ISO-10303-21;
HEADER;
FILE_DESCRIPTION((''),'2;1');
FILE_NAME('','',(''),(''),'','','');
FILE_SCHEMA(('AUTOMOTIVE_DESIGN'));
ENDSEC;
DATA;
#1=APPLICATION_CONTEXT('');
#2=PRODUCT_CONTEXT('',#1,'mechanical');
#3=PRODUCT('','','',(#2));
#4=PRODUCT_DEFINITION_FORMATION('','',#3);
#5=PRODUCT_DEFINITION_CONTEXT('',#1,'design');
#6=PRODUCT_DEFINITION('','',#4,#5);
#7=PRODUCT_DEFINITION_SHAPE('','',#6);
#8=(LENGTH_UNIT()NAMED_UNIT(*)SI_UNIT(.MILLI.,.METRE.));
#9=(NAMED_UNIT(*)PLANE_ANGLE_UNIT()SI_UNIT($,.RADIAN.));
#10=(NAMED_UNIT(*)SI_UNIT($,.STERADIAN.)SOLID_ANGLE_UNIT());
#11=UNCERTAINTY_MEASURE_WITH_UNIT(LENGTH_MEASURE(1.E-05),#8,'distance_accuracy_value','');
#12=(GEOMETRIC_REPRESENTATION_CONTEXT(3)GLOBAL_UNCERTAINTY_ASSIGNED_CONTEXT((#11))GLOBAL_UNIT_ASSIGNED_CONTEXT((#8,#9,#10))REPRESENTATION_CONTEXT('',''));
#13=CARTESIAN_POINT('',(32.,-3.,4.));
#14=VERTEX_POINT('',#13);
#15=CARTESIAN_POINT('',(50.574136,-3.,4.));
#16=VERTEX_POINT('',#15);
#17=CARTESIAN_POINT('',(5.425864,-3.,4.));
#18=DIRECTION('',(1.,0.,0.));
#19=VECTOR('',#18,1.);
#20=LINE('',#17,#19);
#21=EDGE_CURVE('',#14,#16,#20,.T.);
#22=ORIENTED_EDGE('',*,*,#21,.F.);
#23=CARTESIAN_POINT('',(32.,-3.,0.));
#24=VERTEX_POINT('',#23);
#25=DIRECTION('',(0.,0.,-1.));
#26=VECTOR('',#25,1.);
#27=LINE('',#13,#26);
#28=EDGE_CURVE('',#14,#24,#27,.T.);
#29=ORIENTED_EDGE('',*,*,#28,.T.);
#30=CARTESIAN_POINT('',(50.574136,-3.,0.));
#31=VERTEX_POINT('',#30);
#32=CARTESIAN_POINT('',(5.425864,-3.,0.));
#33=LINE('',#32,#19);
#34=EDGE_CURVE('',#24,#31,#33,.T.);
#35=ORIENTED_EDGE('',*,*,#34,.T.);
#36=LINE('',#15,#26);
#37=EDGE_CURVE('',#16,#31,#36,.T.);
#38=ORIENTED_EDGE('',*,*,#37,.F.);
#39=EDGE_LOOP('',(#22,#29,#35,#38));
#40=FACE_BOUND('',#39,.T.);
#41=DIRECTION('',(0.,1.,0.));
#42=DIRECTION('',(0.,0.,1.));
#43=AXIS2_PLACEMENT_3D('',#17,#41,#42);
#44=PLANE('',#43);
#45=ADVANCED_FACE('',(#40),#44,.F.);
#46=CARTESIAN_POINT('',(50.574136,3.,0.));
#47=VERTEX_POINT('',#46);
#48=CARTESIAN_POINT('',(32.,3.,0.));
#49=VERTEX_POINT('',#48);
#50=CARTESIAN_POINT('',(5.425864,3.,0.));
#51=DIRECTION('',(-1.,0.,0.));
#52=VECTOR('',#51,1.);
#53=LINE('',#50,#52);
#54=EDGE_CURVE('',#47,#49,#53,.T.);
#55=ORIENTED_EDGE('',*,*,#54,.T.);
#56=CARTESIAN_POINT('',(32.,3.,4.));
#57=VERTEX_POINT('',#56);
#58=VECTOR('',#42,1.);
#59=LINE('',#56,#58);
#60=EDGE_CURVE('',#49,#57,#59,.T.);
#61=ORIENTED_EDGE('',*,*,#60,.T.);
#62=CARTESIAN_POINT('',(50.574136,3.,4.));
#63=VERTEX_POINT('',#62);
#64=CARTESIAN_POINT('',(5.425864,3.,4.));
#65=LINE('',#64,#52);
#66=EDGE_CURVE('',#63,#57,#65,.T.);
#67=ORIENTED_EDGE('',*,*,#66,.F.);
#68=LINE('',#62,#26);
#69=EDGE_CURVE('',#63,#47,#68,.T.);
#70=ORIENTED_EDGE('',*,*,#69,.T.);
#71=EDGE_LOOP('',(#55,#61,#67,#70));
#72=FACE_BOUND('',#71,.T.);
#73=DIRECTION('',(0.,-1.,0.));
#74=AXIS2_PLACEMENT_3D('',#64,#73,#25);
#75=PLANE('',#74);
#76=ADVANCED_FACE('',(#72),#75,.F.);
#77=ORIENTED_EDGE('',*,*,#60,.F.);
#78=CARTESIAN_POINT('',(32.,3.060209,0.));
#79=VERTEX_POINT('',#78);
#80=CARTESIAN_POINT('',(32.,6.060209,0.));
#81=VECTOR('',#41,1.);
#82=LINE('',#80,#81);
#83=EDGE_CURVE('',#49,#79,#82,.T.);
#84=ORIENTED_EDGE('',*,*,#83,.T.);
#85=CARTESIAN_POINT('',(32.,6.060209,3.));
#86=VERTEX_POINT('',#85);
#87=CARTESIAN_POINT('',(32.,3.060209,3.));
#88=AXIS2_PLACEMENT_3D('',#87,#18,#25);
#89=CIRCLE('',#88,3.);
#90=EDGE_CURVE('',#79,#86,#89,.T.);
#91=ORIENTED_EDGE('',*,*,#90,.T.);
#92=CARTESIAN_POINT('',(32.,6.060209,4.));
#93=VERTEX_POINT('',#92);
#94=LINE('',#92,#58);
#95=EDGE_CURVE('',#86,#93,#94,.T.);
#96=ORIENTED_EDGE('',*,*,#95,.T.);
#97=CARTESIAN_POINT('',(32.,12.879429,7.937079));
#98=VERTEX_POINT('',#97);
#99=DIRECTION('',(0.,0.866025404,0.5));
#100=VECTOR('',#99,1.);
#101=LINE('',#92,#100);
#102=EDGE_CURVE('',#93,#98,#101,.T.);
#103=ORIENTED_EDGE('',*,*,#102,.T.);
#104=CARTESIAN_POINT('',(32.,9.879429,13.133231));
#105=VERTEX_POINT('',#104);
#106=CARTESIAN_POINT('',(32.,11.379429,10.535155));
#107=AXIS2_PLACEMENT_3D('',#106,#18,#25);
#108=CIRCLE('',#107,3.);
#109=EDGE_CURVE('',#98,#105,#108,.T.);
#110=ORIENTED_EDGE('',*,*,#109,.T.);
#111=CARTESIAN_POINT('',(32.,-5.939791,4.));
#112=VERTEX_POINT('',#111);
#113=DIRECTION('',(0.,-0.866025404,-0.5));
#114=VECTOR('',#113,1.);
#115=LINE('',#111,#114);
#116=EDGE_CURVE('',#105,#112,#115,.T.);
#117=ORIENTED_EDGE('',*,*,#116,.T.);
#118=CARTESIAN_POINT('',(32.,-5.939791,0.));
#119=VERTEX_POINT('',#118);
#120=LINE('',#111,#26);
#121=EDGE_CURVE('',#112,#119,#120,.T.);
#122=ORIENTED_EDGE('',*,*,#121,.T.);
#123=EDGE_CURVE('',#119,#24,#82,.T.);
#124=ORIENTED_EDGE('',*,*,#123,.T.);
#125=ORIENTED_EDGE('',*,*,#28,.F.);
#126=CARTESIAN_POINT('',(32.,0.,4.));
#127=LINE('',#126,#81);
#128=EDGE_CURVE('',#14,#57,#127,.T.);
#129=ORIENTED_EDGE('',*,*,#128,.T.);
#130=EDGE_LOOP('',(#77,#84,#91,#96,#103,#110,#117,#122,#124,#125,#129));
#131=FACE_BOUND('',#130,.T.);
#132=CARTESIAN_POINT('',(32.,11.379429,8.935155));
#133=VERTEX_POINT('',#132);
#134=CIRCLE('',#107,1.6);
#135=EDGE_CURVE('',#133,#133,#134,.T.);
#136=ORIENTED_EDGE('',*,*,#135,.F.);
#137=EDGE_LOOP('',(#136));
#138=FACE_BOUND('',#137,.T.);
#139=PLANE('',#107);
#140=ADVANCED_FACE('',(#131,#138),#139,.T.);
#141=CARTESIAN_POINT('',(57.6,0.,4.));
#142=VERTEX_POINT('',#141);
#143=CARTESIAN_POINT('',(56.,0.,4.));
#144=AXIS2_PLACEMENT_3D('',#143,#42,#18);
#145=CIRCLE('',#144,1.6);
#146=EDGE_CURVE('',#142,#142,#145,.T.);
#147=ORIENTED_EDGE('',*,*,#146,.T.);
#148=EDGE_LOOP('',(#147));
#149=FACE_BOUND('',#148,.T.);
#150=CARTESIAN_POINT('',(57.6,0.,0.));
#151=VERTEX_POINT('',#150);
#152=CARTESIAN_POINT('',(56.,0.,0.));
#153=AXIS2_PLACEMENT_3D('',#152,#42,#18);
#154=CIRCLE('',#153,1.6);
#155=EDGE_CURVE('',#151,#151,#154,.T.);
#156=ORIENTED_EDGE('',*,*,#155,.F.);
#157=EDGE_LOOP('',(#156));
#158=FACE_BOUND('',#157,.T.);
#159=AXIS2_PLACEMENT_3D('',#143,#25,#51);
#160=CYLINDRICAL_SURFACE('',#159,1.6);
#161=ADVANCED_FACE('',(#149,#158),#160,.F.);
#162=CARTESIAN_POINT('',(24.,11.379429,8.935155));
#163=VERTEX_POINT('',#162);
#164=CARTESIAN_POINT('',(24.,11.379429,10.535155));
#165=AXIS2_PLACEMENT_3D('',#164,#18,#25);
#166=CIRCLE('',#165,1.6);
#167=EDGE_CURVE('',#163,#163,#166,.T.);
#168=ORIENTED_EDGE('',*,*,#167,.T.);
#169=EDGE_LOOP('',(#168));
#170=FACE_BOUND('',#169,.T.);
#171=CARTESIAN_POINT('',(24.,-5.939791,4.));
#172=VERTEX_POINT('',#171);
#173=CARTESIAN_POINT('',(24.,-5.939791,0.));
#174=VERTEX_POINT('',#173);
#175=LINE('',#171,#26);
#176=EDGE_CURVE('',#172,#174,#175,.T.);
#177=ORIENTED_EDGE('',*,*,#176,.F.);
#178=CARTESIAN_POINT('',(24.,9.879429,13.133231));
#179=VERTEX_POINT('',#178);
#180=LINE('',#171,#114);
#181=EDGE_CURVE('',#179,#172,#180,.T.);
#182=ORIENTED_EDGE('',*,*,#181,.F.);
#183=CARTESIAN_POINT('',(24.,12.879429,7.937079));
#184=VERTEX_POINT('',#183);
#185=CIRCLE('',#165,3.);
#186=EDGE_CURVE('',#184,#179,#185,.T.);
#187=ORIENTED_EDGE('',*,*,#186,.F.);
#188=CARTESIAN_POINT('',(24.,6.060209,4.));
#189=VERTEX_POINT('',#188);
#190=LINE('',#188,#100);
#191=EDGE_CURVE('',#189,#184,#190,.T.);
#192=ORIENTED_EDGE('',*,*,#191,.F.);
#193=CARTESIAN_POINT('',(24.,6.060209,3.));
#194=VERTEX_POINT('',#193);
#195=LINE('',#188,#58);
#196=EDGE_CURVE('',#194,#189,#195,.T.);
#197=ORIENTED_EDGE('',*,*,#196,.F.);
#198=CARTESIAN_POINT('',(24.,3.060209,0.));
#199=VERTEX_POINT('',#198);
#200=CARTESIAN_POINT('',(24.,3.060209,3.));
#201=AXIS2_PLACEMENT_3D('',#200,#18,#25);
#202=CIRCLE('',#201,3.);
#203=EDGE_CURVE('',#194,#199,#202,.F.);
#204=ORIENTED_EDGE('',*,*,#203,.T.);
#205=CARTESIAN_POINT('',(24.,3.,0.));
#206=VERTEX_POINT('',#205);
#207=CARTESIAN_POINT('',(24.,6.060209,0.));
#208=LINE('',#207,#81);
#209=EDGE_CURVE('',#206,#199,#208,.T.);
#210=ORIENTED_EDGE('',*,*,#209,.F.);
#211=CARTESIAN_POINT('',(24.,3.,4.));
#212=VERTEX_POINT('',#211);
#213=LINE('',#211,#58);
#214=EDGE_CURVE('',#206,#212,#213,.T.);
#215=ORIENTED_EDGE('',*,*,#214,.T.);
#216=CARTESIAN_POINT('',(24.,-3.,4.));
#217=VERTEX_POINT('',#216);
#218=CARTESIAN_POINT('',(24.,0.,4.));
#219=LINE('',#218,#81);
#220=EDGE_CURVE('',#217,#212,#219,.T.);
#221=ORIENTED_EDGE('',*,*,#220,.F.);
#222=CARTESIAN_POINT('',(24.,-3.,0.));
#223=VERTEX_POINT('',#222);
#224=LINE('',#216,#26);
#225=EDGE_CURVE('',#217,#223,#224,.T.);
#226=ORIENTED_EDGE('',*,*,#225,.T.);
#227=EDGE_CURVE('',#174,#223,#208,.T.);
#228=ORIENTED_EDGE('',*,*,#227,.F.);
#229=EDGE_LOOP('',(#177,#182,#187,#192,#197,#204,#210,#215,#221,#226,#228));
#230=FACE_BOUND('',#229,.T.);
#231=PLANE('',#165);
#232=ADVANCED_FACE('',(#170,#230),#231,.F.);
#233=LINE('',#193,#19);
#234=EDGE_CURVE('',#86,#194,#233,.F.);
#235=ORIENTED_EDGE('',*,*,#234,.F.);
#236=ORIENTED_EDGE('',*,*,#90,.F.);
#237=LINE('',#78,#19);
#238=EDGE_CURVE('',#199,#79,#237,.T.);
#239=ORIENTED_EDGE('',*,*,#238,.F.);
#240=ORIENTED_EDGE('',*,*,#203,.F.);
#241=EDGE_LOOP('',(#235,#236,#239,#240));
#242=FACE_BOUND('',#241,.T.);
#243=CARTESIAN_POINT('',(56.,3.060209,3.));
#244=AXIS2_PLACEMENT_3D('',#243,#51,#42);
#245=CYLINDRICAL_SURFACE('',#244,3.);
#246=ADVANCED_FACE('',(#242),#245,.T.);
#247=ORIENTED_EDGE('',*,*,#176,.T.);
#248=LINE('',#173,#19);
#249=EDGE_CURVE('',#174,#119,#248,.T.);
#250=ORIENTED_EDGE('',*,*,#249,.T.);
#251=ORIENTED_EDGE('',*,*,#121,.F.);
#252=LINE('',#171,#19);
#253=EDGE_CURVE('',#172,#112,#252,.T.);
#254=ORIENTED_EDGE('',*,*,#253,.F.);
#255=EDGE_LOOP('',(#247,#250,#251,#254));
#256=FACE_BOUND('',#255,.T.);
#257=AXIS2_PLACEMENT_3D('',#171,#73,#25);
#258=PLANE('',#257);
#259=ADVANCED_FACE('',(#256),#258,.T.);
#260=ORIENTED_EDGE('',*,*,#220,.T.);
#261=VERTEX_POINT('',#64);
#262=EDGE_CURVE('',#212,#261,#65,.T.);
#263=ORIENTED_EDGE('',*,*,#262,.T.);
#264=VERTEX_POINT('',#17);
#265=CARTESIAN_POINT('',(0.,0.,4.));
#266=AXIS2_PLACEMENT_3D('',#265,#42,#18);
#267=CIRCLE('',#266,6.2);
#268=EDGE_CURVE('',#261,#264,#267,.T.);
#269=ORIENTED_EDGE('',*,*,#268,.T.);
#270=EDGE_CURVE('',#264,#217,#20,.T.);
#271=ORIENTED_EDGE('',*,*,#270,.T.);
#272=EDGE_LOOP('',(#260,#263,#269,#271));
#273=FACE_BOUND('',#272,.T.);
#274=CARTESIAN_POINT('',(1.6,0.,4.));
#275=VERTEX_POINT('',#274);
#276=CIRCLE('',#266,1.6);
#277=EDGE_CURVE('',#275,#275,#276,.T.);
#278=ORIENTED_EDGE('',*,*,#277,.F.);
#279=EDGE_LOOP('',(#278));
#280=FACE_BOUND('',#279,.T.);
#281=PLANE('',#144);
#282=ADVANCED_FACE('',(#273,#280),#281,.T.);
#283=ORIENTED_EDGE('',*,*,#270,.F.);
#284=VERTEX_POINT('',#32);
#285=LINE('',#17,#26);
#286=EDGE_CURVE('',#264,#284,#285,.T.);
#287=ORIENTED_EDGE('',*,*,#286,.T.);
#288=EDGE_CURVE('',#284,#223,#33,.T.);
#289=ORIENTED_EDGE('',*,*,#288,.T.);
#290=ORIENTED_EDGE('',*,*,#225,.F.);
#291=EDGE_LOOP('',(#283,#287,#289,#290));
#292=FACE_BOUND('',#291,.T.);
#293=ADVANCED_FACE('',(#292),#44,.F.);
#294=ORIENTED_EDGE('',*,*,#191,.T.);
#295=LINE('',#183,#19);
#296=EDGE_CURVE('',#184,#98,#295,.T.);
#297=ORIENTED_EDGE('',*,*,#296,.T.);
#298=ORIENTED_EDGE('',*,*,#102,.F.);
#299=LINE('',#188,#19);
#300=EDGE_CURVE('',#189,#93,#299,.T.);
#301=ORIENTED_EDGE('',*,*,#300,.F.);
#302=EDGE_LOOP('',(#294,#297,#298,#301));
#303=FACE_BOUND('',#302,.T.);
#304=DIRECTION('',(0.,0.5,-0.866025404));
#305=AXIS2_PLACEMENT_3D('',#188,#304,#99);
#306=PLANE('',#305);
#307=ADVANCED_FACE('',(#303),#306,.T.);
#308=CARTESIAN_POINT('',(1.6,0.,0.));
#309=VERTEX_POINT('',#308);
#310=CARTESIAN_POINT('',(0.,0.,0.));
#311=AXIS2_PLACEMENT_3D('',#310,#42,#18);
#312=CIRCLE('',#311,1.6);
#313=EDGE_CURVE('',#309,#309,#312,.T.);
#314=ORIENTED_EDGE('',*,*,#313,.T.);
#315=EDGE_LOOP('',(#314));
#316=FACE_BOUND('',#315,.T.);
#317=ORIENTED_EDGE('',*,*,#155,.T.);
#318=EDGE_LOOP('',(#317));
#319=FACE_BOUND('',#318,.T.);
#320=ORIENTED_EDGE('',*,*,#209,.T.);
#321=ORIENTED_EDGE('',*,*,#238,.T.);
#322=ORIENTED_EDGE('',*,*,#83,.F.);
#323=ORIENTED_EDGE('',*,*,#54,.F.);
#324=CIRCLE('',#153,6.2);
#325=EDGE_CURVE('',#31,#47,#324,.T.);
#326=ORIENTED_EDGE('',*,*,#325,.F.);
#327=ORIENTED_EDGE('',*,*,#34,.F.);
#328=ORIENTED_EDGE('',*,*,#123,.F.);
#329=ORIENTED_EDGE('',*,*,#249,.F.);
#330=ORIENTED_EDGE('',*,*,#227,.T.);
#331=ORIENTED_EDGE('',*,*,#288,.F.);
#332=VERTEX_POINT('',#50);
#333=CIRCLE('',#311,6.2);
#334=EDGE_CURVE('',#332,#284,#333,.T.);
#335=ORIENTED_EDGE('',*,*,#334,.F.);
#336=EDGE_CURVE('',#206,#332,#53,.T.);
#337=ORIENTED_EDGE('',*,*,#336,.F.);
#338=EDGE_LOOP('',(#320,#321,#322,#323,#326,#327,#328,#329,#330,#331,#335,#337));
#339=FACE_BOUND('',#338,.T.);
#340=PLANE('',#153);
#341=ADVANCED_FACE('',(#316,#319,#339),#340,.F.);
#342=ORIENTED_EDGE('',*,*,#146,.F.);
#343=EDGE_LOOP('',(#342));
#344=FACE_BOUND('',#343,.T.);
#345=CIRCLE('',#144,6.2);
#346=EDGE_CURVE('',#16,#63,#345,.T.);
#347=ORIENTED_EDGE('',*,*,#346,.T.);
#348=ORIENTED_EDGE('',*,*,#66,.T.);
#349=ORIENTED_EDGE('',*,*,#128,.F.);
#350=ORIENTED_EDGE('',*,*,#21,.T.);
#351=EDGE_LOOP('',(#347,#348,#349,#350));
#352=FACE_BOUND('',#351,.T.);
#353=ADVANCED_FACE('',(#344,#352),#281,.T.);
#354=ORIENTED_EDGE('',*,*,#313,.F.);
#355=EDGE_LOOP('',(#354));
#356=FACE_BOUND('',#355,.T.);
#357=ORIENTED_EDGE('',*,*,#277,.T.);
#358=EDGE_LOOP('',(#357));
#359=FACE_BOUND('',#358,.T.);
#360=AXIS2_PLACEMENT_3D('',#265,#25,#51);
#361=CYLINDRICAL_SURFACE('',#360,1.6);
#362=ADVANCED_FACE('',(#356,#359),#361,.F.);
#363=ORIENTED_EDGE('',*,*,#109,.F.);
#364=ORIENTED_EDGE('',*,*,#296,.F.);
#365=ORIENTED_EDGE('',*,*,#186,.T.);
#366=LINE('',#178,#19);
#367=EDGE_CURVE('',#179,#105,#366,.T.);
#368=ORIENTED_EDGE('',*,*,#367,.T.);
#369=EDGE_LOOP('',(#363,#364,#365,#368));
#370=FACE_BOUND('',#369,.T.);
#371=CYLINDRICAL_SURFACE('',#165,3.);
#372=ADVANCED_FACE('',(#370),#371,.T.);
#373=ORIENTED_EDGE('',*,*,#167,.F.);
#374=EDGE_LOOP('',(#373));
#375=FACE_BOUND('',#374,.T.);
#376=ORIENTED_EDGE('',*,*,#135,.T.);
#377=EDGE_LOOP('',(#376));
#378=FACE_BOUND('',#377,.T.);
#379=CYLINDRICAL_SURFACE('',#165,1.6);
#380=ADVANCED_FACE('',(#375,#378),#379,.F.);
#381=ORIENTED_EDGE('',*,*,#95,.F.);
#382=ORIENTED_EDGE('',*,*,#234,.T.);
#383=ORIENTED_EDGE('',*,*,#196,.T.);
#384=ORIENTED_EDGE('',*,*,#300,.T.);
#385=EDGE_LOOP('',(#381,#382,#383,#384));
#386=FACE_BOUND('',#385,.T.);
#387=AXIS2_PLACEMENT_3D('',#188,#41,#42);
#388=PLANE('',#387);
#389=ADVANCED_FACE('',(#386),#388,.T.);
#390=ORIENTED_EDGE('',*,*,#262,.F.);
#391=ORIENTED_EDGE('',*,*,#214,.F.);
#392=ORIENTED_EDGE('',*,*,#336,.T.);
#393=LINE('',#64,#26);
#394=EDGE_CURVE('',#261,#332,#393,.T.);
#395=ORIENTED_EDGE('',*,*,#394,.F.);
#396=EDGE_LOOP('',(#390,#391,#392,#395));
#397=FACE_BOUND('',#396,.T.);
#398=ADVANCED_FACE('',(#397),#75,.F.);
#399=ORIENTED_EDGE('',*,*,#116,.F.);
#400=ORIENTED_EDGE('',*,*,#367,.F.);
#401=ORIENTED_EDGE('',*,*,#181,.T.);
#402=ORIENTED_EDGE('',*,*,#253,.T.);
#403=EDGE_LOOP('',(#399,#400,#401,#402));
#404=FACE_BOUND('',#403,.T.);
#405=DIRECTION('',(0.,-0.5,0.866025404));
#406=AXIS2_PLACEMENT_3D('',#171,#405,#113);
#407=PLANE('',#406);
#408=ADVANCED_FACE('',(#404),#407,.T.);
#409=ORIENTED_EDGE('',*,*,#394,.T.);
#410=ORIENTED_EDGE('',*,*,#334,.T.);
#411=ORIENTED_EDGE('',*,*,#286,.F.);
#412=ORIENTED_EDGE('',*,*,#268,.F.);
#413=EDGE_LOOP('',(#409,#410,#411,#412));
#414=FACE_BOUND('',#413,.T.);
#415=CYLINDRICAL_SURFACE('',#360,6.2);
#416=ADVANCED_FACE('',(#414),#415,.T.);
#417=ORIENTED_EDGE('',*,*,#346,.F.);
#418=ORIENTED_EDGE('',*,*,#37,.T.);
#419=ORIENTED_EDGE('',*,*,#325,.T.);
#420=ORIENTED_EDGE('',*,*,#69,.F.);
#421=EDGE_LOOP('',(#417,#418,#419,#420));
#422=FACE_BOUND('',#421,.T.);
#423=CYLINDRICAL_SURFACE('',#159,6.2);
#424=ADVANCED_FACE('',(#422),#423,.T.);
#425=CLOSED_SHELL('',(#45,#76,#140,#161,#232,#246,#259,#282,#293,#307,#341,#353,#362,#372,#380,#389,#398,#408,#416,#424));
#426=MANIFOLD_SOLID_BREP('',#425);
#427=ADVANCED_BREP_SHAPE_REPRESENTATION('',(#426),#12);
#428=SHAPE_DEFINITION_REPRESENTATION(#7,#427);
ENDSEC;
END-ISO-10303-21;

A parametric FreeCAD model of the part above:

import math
import FreeCAD as App
import Part
import Sketcher

V = App.Vector


def edges_at(feature, points):
    """Names of the edges that pass closest to the given points."""
    edges = feature.Shape.Edges
    near = lambda p: min(range(len(edges)), key=lambda i: edges[i].distToShape(Part.Vertex(*p))[0])
    return sorted({f"Edge{near(p) + 1}" for p in points})

doc = App.newDocument("Part")
body = doc.addObject("PartDesign::Body", "Body")

sketch1 = body.newObject("Sketcher::SketchObject", "Sketch")
sketch1.AttachmentSupport = (doc.getObject("XY_Plane"), [""])
sketch1.MapMode = "FlatFace"
sketch1.addGeometry([
    Part.LineSegment(V(5.425864, -3, 0), V(50.574136, -3, 0)),
    Part.ArcOfCircle(Part.Circle(V(56, 0, 0), V(0, 0, 1), 6.2), math.radians(-151.061472), math.radians(151.061472)),
    Part.LineSegment(V(50.574136, 3, 0), V(5.425864, 3, 0)),
    Part.ArcOfCircle(Part.Circle(V(0, 0, 0), V(0, 0, 1), 6.2), math.radians(28.938528), math.radians(331.061472)),
    Part.Circle(V(0, 0, 0), V(0, 0, 1), 1.6),
    Part.Circle(V(56, 0, 0), V(0, 0, 1), 1.6),
], False)
sketch1.addConstraint([
    Sketcher.Constraint("Coincident", 0, 2, 1, 1),
    Sketcher.Constraint("Coincident", 1, 2, 2, 1),
    Sketcher.Constraint("Coincident", 2, 2, 3, 1),
    Sketcher.Constraint("Coincident", 3, 2, 0, 1),
    Sketcher.Constraint("Horizontal", 0),
    Sketcher.Constraint("Horizontal", 2),
    Sketcher.Constraint("Coincident", 3, 3, -1, 1),
    Sketcher.Constraint("Coincident", 4, 3, -1, 1),
    Sketcher.Constraint("Coincident", 5, 3, 1, 3),
    Sketcher.Constraint("Equal", 1, 3),
    Sketcher.Constraint("Equal", 4, 5),
    Sketcher.Constraint("Symmetric", 0, 2, 1, 2, -1),
    Sketcher.Constraint("Diameter", 4, 3.2),
    Sketcher.Constraint("Radius", 1, 6.2),
    Sketcher.Constraint("DistanceX", -1, 1, 1, 3, 56.0),
    Sketcher.Constraint("DistanceY", 0, 2, -1, 1, 3.0),
])
pad1 = body.newObject("PartDesign::Pad", "Pad")
pad1.Profile = sketch1
pad1.Length = 4

sketch2 = body.newObject("Sketcher::SketchObject", "Sketch001")
sketch2.AttachmentSupport = (doc.getObject("YZ_Plane"), [""])
sketch2.MapMode = "FlatFace"
sketch2.AttachmentOffset = App.Placement(V(0, 0, 28), App.Rotation())
sketch2.addGeometry([
    Part.LineSegment(V(9.879429, 13.133231, 0), V(-5.939791, 4, 0)),
    Part.LineSegment(V(-5.939791, 4, 0), V(-5.939791, 0, 0)),
    Part.LineSegment(V(-5.939791, 0, 0), V(6.060209, 0, 0)),
    Part.LineSegment(V(6.060209, 0, 0), V(6.060209, 4, 0)),
    Part.LineSegment(V(6.060209, 4, 0), V(12.879429, 7.937079, 0)),
    Part.ArcOfCircle(Part.Circle(V(11.379429, 10.535155, 0), V(0, 0, 1), 3), math.radians(-60), math.radians(120)),
    Part.Circle(V(11.379429, 10.535155, 0), V(0, 0, 1), 1.6),
], False)
sketch2.addConstraint([
    Sketcher.Constraint("Coincident", 0, 2, 1, 1),
    Sketcher.Constraint("Coincident", 1, 2, 2, 1),
    Sketcher.Constraint("Coincident", 2, 2, 3, 1),
    Sketcher.Constraint("Coincident", 3, 2, 4, 1),
    Sketcher.Constraint("Tangent", 4, 2, 5, 1),
    Sketcher.Constraint("Tangent", 5, 2, 0, 1),
    Sketcher.Constraint("Vertical", 1),
    Sketcher.Constraint("Horizontal", 2),
    Sketcher.Constraint("Vertical", 3),
    Sketcher.Constraint("Coincident", 6, 3, 5, 3),
    Sketcher.Constraint("PointOnObject", 1, 2, -1),
    Sketcher.Constraint("Parallel", 0, 4),
    Sketcher.Constraint("Horizontal", 0, 2, 3, 2),
    Sketcher.Constraint("Radius", 5, 3.0),
    Sketcher.Constraint("Diameter", 6, 3.2),
    Sketcher.Constraint("DistanceX", 2, 1, 2, 2, 12.0),
    Sketcher.Constraint("DistanceY", 1, 2, 1, 1, 4.0),
    Sketcher.Constraint("DistanceX", -1, 1, 5, 3, 11.379429),
    Sketcher.Constraint("DistanceX", 0, 2, -1, 1, 5.939791),
])
pad2 = body.newObject("PartDesign::Pad", "Pad001")
pad2.Profile = sketch2
pad2.Type = "TwoLengths"
pad2.Length = 4
pad2.Length2 = 4
doc.recompute()

fillet = body.newObject("PartDesign::Fillet", "Fillet")
fillet.Base = (pad2, edges_at(pad2, [(28, 6.06, 0)]))
fillet.Radius = 3

doc.recompute()
